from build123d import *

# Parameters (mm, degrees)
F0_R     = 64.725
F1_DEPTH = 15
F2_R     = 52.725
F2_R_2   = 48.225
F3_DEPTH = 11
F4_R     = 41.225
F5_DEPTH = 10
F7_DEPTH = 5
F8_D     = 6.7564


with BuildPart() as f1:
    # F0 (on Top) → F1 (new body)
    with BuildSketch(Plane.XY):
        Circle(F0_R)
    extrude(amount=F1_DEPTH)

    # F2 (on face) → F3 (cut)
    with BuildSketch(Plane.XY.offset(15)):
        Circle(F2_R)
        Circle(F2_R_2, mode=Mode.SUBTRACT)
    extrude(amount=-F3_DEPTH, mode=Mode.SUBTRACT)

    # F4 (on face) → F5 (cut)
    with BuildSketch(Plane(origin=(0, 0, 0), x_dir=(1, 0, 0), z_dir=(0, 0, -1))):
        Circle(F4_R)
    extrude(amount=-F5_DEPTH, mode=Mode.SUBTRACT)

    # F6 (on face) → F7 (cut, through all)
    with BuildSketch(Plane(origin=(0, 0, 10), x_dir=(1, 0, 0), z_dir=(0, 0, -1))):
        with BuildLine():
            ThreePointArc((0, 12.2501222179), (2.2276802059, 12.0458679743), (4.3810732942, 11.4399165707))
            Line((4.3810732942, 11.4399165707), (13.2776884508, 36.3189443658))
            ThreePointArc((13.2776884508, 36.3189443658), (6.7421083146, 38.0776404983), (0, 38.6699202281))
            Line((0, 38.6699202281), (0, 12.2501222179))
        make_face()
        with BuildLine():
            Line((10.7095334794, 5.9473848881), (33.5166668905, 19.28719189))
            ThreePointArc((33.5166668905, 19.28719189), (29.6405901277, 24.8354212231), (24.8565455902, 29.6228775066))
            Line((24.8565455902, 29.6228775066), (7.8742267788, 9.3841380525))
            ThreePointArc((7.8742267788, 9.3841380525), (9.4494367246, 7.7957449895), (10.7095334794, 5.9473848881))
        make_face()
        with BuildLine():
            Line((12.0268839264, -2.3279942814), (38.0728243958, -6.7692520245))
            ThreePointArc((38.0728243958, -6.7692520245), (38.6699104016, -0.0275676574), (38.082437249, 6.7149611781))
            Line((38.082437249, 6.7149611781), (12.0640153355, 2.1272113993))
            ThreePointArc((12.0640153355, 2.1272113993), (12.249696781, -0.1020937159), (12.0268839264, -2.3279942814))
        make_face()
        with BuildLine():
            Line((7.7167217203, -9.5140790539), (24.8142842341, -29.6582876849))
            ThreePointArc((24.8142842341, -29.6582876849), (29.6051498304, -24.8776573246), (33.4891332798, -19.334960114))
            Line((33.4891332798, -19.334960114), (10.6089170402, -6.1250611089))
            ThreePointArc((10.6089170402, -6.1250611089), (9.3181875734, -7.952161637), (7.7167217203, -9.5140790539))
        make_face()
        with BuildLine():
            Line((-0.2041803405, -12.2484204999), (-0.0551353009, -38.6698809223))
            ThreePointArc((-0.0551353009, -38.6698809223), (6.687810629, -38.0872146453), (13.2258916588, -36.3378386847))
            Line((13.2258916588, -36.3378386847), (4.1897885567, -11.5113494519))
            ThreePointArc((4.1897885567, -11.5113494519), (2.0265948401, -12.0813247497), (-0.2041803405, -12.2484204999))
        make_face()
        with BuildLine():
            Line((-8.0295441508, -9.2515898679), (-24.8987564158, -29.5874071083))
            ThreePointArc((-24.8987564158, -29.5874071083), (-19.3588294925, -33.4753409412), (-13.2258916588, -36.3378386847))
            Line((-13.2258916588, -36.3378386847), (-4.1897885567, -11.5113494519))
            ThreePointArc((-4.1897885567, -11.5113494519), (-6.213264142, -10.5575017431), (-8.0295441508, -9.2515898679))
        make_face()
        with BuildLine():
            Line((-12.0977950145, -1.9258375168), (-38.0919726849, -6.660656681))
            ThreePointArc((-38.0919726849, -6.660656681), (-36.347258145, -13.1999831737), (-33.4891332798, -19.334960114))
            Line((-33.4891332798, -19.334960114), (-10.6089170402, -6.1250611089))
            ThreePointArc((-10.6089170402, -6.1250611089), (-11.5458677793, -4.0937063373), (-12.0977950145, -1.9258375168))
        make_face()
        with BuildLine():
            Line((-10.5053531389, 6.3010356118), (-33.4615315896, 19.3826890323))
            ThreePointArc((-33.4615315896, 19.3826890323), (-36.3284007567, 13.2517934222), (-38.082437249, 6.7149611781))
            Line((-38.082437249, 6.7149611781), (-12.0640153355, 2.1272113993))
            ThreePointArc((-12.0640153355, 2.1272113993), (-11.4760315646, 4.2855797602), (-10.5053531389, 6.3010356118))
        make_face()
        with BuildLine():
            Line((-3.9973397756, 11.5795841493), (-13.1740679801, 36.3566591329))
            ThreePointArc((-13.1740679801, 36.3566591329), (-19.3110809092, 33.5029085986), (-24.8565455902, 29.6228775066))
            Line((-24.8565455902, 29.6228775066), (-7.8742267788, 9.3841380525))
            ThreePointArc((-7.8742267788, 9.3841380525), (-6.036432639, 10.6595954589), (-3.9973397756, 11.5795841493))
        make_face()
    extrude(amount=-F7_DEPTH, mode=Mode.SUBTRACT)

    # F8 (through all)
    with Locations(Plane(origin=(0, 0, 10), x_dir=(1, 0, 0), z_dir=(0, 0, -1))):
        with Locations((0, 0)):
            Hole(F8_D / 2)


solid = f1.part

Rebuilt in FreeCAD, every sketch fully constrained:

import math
import FreeCAD as App
import Part
import Sketcher

V = App.Vector
Q = App.Units.Quantity

doc = App.newDocument("Part")
body = doc.addObject("PartDesign::Body", "Body")

# Sketch on XY plane
sketch1 = body.newObject("Sketcher::SketchObject", "Sketch")
sketch1.AttachmentSupport = (doc.getObject("XY_Plane"), [""])
sketch1.MapMode = "FlatFace"
sketch1.addGeometry(Part.Circle(V(0, 0, 0), V(0, 0, 1), 65), False)
sketch1.addConstraint([
    Sketcher.Constraint("Coincident", 0, 3, -1, 1),
    Sketcher.Constraint("Diameter", 0, 129.45),
])
pad1 = body.newObject("PartDesign::Pad", "Pad")
pad1.Profile = sketch1
pad1.Length = 15

# Sketch on XY plane
sketch2 = body.newObject("Sketcher::SketchObject", "Sketch001")
sketch2.AttachmentSupport = (doc.getObject("XY_Plane"), [""])
sketch2.MapMode = "FlatFace"
sketch2.AttachmentOffset = App.Placement(V(0, 0, 15), App.Rotation())
sketch2.addGeometry([
    Part.Circle(V(0, 0, 0), V(0, 0, 1), 53),
    Part.Circle(V(0, 0, 0), V(0, 0, 1), 48),
], False)
sketch2.addConstraint([
    Sketcher.Constraint("Coincident", 0, 3, -1, 1),
    Sketcher.Constraint("Coincident", 1, 3, -1, 1),
    Sketcher.Constraint("Diameter", 0, 105.45),
    Sketcher.Constraint("Diameter", 1, 96.45),
])
pocket1 = body.newObject("PartDesign::Pocket", "Pocket")
pocket1.Profile = sketch2
pocket1.Length = 11

# Sketch on XY plane
sketch3 = body.newObject("Sketcher::SketchObject", "Sketch002")
sketch3.AttachmentSupport = (doc.getObject("XY_Plane"), [""])
sketch3.MapMode = "FlatFace"
sketch3.addGeometry(Part.Circle(V(0, 0, 0), V(0, 0, 1), 41), False)
sketch3.addConstraint([
    Sketcher.Constraint("Coincident", 0, 3, -1, 1),
    Sketcher.Constraint("Diameter", 0, 82.45),
])
pocket2 = body.newObject("PartDesign::Pocket", "Pocket001")
pocket2.Profile = sketch3
pocket2.Length = 10
pocket2.Reversed = True

# Sketch on XY plane
sketch4 = body.newObject("Sketcher::SketchObject", "Sketch003")
sketch4.AttachmentSupport = (doc.getObject("XY_Plane"), [""])
sketch4.MapMode = "FlatFace"
sketch4.AttachmentOffset = App.Placement(V(0, 0, 10), App.Rotation())
sketch4.addGeometry([
    Part.ArcOfCircle(Part.Circle(V(0, 0, 0), V(0, 0, 1), 12.3), math.radians(-90), math.radians(-69)),  # 0
    Part.LineSegment(V(4.4, -11.4, 0), V(13.3, -36.3, 0)),  # 1
    Part.ArcOfCircle(Part.Circle(V(0, 0, 0), V(0, 0, 1), 38.7), math.radians(-90), math.radians(-70)),  # 2
    Part.LineSegment(V(0, -38.7, 0), V(0, -12.3, 0)),  # 3
    Part.LineSegment(V(10.7, -5.9, 0), V(33.5, -19.3, 0)),  # 4
    Part.ArcOfCircle(Part.Circle(V(0, 0, 0), V(0, 0, 1), 38.7), math.radians(-50), math.radians(-30)),  # 5
    Part.LineSegment(V(24.9, -29.6, 0), V(7.9, -9.4, 0)),  # 6
    Part.ArcOfCircle(Part.Circle(V(0, 0, 0), V(0, 0, 1), 12.3), math.radians(-50), math.radians(-29)),  # 7
    Part.LineSegment(V(12, 2.3, 0), V(38.1, 6.8, 0)),  # 8
    Part.ArcOfCircle(Part.Circle(V(0, 0, 0), V(0, 0, 1), 38.7), math.radians(-10), math.radians(10)),  # 9
    Part.LineSegment(V(38.1, -6.7, 0), V(12.1, -2.1, 0)),  # 10
    Part.ArcOfCircle(Part.Circle(V(0, 0, 0), V(0, 0, 1), 12.3), math.radians(-10), math.radians(11)),  # 11
    Part.LineSegment(V(7.7, 9.5, 0), V(24.8, 29.7, 0)),  # 12
    Part.ArcOfCircle(Part.Circle(V(0, 0, 0), V(0, 0, 1), 38.7), math.radians(30), math.radians(50)),  # 13
    Part.LineSegment(V(33.5, 19.3, 0), V(10.6, 6.1, 0)),  # 14
    Part.ArcOfCircle(Part.Circle(V(0, 0, 0), V(0, 0, 1), 12.3), math.radians(30), math.radians(51)),  # 15
    Part.LineSegment(V(-0.2, 12.2, 0), V(-0.1, 38.7, 0)),  # 16
    Part.ArcOfCircle(Part.Circle(V(0, 0, 0), V(0, 0, 1), 38.7), math.radians(70), math.radians(90)),  # 17
    Part.LineSegment(V(13.2, 36.3, 0), V(4.2, 11.5, 0)),  # 18
    Part.ArcOfCircle(Part.Circle(V(0, 0, 0), V(0, 0, 1), 12.3), math.radians(70), math.radians(91)),  # 19
    Part.LineSegment(V(-8, 9.3, 0), V(-24.9, 29.6, 0)),  # 20
    Part.ArcOfCircle(Part.Circle(V(0, 0, 0), V(0, 0, 1), 38.7), math.radians(110), math.radians(130)),  # 21
    Part.LineSegment(V(-13.2, 36.3, 0), V(-4.2, 11.5, 0)),  # 22
    Part.ArcOfCircle(Part.Circle(V(0, 0, 0), V(0, 0, 1), 12.3), math.radians(110), math.radians(131)),  # 23
    Part.LineSegment(V(-12.1, 1.9, 0), V(-38.1, 6.7, 0)),  # 24
    Part.ArcOfCircle(Part.Circle(V(0, 0, 0), V(0, 0, 1), 38.7), math.radians(150), math.radians(170)),  # 25
    Part.LineSegment(V(-33.5, 19.3, 0), V(-10.6, 6.1, 0)),  # 26
    Part.ArcOfCircle(Part.Circle(V(0, 0, 0), V(0, 0, 1), 12.3), math.radians(150), math.radians(171)),  # 27
    Part.LineSegment(V(-10.5, -6.3, 0), V(-33.5, -19.4, 0)),  # 28
    Part.ArcOfCircle(Part.Circle(V(0, 0, 0), V(0, 0, 1), 38.7), math.radians(-170), math.radians(-150)),  # 29
    Part.LineSegment(V(-38.1, -6.7, 0), V(-12.1, -2.1, 0)),  # 30
    Part.ArcOfCircle(Part.Circle(V(0, 0, 0), V(0, 0, 1), 12.3), math.radians(-170), math.radians(-149)),  # 31
    Part.LineSegment(V(-4, -11.6, 0), V(-13.2, -36.4, 0)),  # 32
    Part.ArcOfCircle(Part.Circle(V(0, 0, 0), V(0, 0, 1), 38.7), math.radians(-130), math.radians(-110)),  # 33
    Part.LineSegment(V(-24.9, -29.6, 0), V(-7.9, -9.4, 0)),  # 34
    Part.ArcOfCircle(Part.Circle(V(0, 0, 0), V(0, 0, 1), 12.3), math.radians(-130), math.radians(-109)),  # 35
], False)
sketch4.addConstraint([
    Sketcher.Constraint("Coincident", 0, 2, 1, 1),
    Sketcher.Constraint("Coincident", 1, 2, 2, 2),
    Sketcher.Constraint("Coincident", 2, 1, 3, 1),
    Sketcher.Constraint("Coincident", 3, 2, 0, 1),
    Sketcher.Constraint("Coincident", 4, 2, 5, 2),
    Sketcher.Constraint("Coincident", 5, 1, 6, 1),
    Sketcher.Constraint("Coincident", 6, 2, 7, 1),
    Sketcher.Constraint("Coincident", 7, 2, 4, 1),
    Sketcher.Constraint("Coincident", 8, 2, 9, 2),
    Sketcher.Constraint("Coincident", 9, 1, 10, 1),
    Sketcher.Constraint("Coincident", 10, 2, 11, 1),
    Sketcher.Constraint("Coincident", 11, 2, 8, 1),
    Sketcher.Constraint("Coincident", 12, 2, 13, 2),
    Sketcher.Constraint("Coincident", 13, 1, 14, 1),
    Sketcher.Constraint("Coincident", 14, 2, 15, 1),
    Sketcher.Constraint("Coincident", 15, 2, 12, 1),
    Sketcher.Constraint("Coincident", 16, 2, 17, 2),
    Sketcher.Constraint("Coincident", 17, 1, 18, 1),
    Sketcher.Constraint("Coincident", 18, 2, 19, 1),
    Sketcher.Constraint("Coincident", 19, 2, 16, 1),
    Sketcher.Constraint("Coincident", 20, 2, 21, 2),
    Sketcher.Constraint("Coincident", 21, 1, 22, 1),
    Sketcher.Constraint("Coincident", 22, 2, 23, 1),
    Sketcher.Constraint("Coincident", 23, 2, 20, 1),
    Sketcher.Constraint("Coincident", 24, 2, 25, 2),
    Sketcher.Constraint("Coincident", 25, 1, 26, 1),
    Sketcher.Constraint("Coincident", 26, 2, 27, 1),
    Sketcher.Constraint("Coincident", 27, 2, 24, 1),
    Sketcher.Constraint("Coincident", 28, 2, 29, 2),
    Sketcher.Constraint("Coincident", 29, 1, 30, 1),
    Sketcher.Constraint("Coincident", 30, 2, 31, 1),
    Sketcher.Constraint("Coincident", 31, 2, 28, 1),
    Sketcher.Constraint("Coincident", 32, 2, 33, 2),
    Sketcher.Constraint("Coincident", 33, 1, 34, 1),
    Sketcher.Constraint("Coincident", 34, 2, 35, 1),
    Sketcher.Constraint("Coincident", 35, 2, 32, 1),
    Sketcher.Constraint("Vertical", 3),
    Sketcher.Constraint("Coincident", 0, 3, -1, 1),
    Sketcher.Constraint("Coincident", 2, 3, -1, 1),
    Sketcher.Constraint("Coincident", 5, 3, -1, 1),
    Sketcher.Constraint("Coincident", 7, 3, -1, 1),
    Sketcher.Constraint("Coincident", 9, 3, -1, 1),
    Sketcher.Constraint("Coincident", 11, 3, -1, 1),
    Sketcher.Constraint("Coincident", 13, 3, -1, 1),
    Sketcher.Constraint("Coincident", 15, 3, -1, 1),
    Sketcher.Constraint("Coincident", 17, 3, -1, 1),
    Sketcher.Constraint("Coincident", 19, 3, -1, 1),
    Sketcher.Constraint("Coincident", 21, 3, -1, 1),
    Sketcher.Constraint("Coincident", 23, 3, -1, 1),
    Sketcher.Constraint("Coincident", 25, 3, -1, 1),
    Sketcher.Constraint("Coincident", 27, 3, -1, 1),
    Sketcher.Constraint("Coincident", 29, 3, -1, 1),
    Sketcher.Constraint("Coincident", 31, 3, -1, 1),
    Sketcher.Constraint("Coincident", 33, 3, -1, 1),
    Sketcher.Constraint("Coincident", 35, 3, -1, 1),
    Sketcher.Constraint("Equal", 2, 5),
    Sketcher.Constraint("Equal", 0, 7),
    Sketcher.Constraint("Equal", 5, 9),
    Sketcher.Constraint("Equal", 7, 11),
    Sketcher.Constraint("Equal", 9, 13),
    Sketcher.Constraint("Equal", 11, 15),
    Sketcher.Constraint("Equal", 13, 17),
    Sketcher.Constraint("Equal", 15, 19),
    Sketcher.Constraint("Equal", 17, 21),
    Sketcher.Constraint("Equal", 19, 23),
    Sketcher.Constraint("Equal", 21, 25),
    Sketcher.Constraint("Equal", 23, 27),
    Sketcher.Constraint("Equal", 25, 29),
    Sketcher.Constraint("Equal", 27, 31),
    Sketcher.Constraint("Equal", 29, 33),
    Sketcher.Constraint("Equal", 31, 35),
    Sketcher.Constraint("PointOnObject", 2, 1, -2),
    Sketcher.Constraint("Horizontal", 17, 1, 21, 1),
    Sketcher.Constraint("Horizontal", 18, 2, 22, 2),
    Sketcher.Constraint("Horizontal", 13, 1, 25, 1),
    Sketcher.Constraint("Horizontal", 14, 2, 26, 2),
    Sketcher.Constraint("Horizontal", 9, 1, 29, 1),
    Sketcher.Constraint("Horizontal", 10, 2, 30, 2),
    Sketcher.Constraint("Horizontal", 5, 1, 33, 1),
    Sketcher.Constraint("Horizontal", 6, 2, 34, 2),
    Sketcher.Constraint("Equal", 1, 4),
    Sketcher.Constraint("Equal", 4, 8),
    Sketcher.Constraint("Equal", 8, 12),
    Sketcher.Constraint("Equal", 12, 16),
    Sketcher.Constraint("Equal", 16, 20),
    Sketcher.Constraint("Equal", 20, 24),
    Sketcher.Constraint("Equal", 24, 28),
    Sketcher.Constraint("Equal", 28, 32),
    Sketcher.Constraint("Angle", 6, Q("130 deg")),
    Sketcher.Constraint("Angle", 10, Q("170 deg")),
    Sketcher.Constraint("Angle", 14, Q("-150 deg")),
    Sketcher.Constraint("Angle", 18, Q("-110 deg")),
    Sketcher.Constraint("Radius", 2, 38.66992),
    Sketcher.Constraint("DistanceY", 3, 1, 3, 2, 26.419798),
    Sketcher.Constraint("DistanceX", 11, 2, 12, 2, 12.7874),
    Sketcher.Constraint("DistanceY", 10, 2, 12, 2, 31.785499),
    Sketcher.Constraint("DistanceX", 14, 2, 10, 2, 1.455098),
    Sketcher.Constraint("DistanceY", 15, 2, 16, 2, 29.155802),
    Sketcher.Constraint("DistanceY", 29, 1, 27, 2, 8.640799),
    Sketcher.Constraint("DistanceY", 30, 2, 23, 2, 11.378801),
    Sketcher.Constraint("DistanceX", -1, 1, 1, 2, 13.277688),
    Sketcher.Constraint("DistanceY", 4, 2, -1, 1, 19.287192),
    Sketcher.Constraint("DistanceY", 6, 2, -1, 1, 9.384138),
    Sketcher.Constraint("DistanceY", 10, 2, -1, 1, 2.127211),
    Sketcher.Constraint("DistanceX", -1, 1, 17, 1, 13.225892),
    Sketcher.Constraint("DistanceX", 19, 2, -1, 1, 0.20418),
    Sketcher.Constraint("DistanceX", 28, 2, -1, 1, 33.461532),
    Sketcher.Constraint("DistanceY", 32, 2, -1, 1, 36.356659),
])
pocket3 = body.newObject("PartDesign::Pocket", "Pocket002")
pocket3.Profile = sketch4
pocket3.Type = "ThroughAll"
pocket3.Reversed = True

# Sketch on XY plane
sketch5 = body.newObject("Sketcher::SketchObject", "Sketch004")
sketch5.AttachmentSupport = (doc.getObject("XY_Plane"), [""])
sketch5.MapMode = "FlatFace"
sketch5.AttachmentOffset = App.Placement(V(0, 0, 10), App.Rotation())
sketch5.addGeometry(Part.Circle(V(0, 0, 0), V(0, 0, 1), 3.4), False)
sketch5.addConstraint([
    Sketcher.Constraint("Coincident", 0, 3, -1, 1),
    Sketcher.Constraint("Diameter", 0, 6.7564),
])
doc.recompute()
hole = body.newObject("PartDesign::Hole", "Hole")
hole.Profile = sketch5
hole.ThreadType = "None"
hole.Diameter = 6.7564
hole.DepthType = "ThroughAll"
hole.Reversed = True

doc.recompute()
